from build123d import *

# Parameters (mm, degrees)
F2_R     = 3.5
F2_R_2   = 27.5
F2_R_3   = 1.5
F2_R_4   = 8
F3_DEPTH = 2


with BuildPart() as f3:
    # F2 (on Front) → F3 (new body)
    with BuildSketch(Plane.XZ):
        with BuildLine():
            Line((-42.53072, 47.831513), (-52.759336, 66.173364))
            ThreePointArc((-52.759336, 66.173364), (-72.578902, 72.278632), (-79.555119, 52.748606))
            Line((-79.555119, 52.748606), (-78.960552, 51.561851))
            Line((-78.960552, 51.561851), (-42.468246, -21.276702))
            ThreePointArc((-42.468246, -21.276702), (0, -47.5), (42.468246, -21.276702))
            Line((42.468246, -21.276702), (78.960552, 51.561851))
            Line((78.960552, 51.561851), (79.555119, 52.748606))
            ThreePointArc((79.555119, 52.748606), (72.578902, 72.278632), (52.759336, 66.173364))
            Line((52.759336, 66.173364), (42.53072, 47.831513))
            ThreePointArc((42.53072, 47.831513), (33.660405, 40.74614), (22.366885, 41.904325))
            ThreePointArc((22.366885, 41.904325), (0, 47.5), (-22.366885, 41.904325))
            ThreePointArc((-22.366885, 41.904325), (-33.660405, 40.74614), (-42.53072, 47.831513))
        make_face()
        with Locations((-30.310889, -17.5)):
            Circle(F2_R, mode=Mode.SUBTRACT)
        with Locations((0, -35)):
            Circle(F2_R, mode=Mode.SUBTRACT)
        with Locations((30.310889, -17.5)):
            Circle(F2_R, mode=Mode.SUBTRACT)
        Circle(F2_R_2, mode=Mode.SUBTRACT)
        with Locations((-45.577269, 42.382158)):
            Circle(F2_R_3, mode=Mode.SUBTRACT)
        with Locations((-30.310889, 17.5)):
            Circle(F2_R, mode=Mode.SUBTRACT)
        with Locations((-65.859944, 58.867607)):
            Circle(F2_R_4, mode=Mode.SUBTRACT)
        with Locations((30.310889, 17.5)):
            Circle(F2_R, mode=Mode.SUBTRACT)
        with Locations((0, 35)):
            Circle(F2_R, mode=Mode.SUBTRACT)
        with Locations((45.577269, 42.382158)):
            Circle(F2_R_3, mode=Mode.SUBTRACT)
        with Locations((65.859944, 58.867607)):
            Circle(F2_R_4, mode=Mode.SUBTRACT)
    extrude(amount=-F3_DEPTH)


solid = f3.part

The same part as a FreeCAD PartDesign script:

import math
import FreeCAD as App
import Part
import Sketcher
Q = App.Units.Quantity

doc = App.newDocument("Part")
params = doc.addObject("Spreadsheet::Sheet", "Params")
for row, (alias, value) in enumerate([
    ("sketch1_diameter", "7 mm"),
    ("sketch1_diameter2", "55 mm"),
    ("sketch1_diameter3", "3 mm"),
    ("sketch1_diameter4", "16 mm"),
    ("sketch1_radius", "15 mm"),
    ("pad1_length", "2 mm"),
], start=1):
    params.set(f"A{row}", alias)
    params.set(f"B{row}", "=" + value)
    params.setAlias(f"B{row}", alias)

body = doc.addObject("PartDesign::Body", "Body")

sketch1 = body.newObject("Sketcher::SketchObject", "Sketch")
sketch1.AttachmentSupport = (doc.getObject("XZ_Plane"), [""])
sketch1.MapMode = "FlatFace"
sketch1.addGeometry([
    Part.LineSegment(App.Vector(-42.53072, 47.831513, 0), App.Vector(-52.759336, 66.173364, 0)),
    Part.ArcOfCircle(Part.Circle(App.Vector(-65.859943, 58.867607, 0), App.Vector(0, 0, 1), 15), math.radians(29.146902), math.radians(204.075079)),
    Part.LineSegment(App.Vector(-79.555119, 52.748606, 0), App.Vector(-78.960552, 51.561851, 0)),
    Part.LineSegment(App.Vector(-78.960552, 51.561851, 0), App.Vector(-42.468246, -21.276702, 0)),
    Part.ArcOfCircle(Part.Circle(App.Vector(0, -0.000001, 0), App.Vector(0, 0, 1), 47.499999), math.radians(-153.389012), math.radians(-26.610988)),
    Part.LineSegment(App.Vector(42.468246, -21.276702, 0), App.Vector(78.960552, 51.561851, 0)),
    Part.LineSegment(App.Vector(78.960552, 51.561851, 0), App.Vector(79.555119, 52.748606, 0)),
    Part.ArcOfCircle(Part.Circle(App.Vector(65.859943, 58.867607, 0), App.Vector(0, 0, 1), 15), math.radians(-24.075079), math.radians(150.853098)),
    Part.LineSegment(App.Vector(52.759336, 66.173364, 0), App.Vector(42.53072, 47.831513, 0)),
    Part.ArcOfCircle(Part.Circle(App.Vector(29.430112, 55.137271, 0), App.Vector(0, 0, 1), 15.000001), math.radians(-118.091548), math.radians(-29.146904)),
    Part.ArcOfCircle(Part.Circle(App.Vector(0, 0, 0), App.Vector(0, 0, 1), 47.5), math.radians(61.908449), math.radians(118.091551)),
    Part.ArcOfCircle(Part.Circle(App.Vector(-29.430112, 55.137271, 0), App.Vector(0, 0, 1), 15.000001), math.radians(-150.853096), math.radians(-61.908452)),
    Part.Circle(App.Vector(-30.310889, -17.5, 0), App.Vector(0, 0, 1), 3.5),
    Part.Circle(App.Vector(0, -35, 0), App.Vector(0, 0, 1), 3.5),
    Part.Circle(App.Vector(30.310889, -17.5, 0), App.Vector(0, 0, 1), 3.5),
    Part.Circle(App.Vector(0, 0, 0), App.Vector(0, 0, 1), 27.5),
    Part.Circle(App.Vector(-30.310889, 17.5, 0), App.Vector(0, 0, 1), 3.5),
    Part.Circle(App.Vector(-45.577269, 42.382158, 0), App.Vector(0, 0, 1), 1.5),
    Part.Circle(App.Vector(-65.859944, 58.867607, 0), App.Vector(0, 0, 1), 8),
    Part.Circle(App.Vector(30.310889, 17.5, 0), App.Vector(0, 0, 1), 3.5),
    Part.Circle(App.Vector(0, 35, 0), App.Vector(0, 0, 1), 3.5),
    Part.Circle(App.Vector(45.577269, 42.382158, 0), App.Vector(0, 0, 1), 1.5),
    Part.Circle(App.Vector(65.859944, 58.867607, 0), App.Vector(0, 0, 1), 8),
], False)
sketch1.addConstraint([
    Sketcher.Constraint("Tangent", 0, 2, 1, 1),
    Sketcher.Constraint("Coincident", 1, 2, 2, 1),
    Sketcher.Constraint("Coincident", 2, 2, 3, 1),
    Sketcher.Constraint("Tangent", 3, 2, 4, 1),
    Sketcher.Constraint("Tangent", 4, 2, 5, 1),
    Sketcher.Constraint("Coincident", 5, 2, 6, 1),
    Sketcher.Constraint("Coincident", 6, 2, 7, 1),
    Sketcher.Constraint("Tangent", 7, 2, 8, 1),
    Sketcher.Constraint("Tangent", 8, 2, 9, 2),
    Sketcher.Constraint("Tangent", 9, 1, 10, 1),
    Sketcher.Constraint("Tangent", 10, 2, 11, 2),
    Sketcher.Constraint("Tangent", 11, 1, 0, 1),
    Sketcher.Constraint("Coincident", 4, 3, -1, 1),
    Sketcher.Constraint("Coincident", 10, 3, -1, 1),
    Sketcher.Constraint("Coincident", 15, 3, -1, 1),
    Sketcher.Constraint("Coincident", 18, 3, 1, 3),
    Sketcher.Constraint("Coincident", 22, 3, 7, 3),
    Sketcher.Constraint("Equal", 1, 7),
    Sketcher.Constraint("Equal", 7, 9),
    Sketcher.Constraint("Equal", 4, 10),
    Sketcher.Constraint("Equal", 9, 11),
    Sketcher.Constraint("Equal", 12, 13),
    Sketcher.Constraint("Equal", 13, 14),
    Sketcher.Constraint("Equal", 14, 16),
    Sketcher.Constraint("Equal", 16, 19),
    Sketcher.Constraint("Equal", 19, 20),
    Sketcher.Constraint("Equal", 17, 21),
    Sketcher.Constraint("Equal", 18, 22),
    Sketcher.Constraint("Symmetric", 14, 3, 16, 3, -1, 1),
    Sketcher.Constraint("Symmetric", 12, 3, 19, 3, -1, 1),
    Sketcher.Constraint("Symmetric", 13, 3, 20, 3, -1, 1),
    Sketcher.Constraint("Symmetric", 1, 3, 7, 3, -2),
    Sketcher.Constraint("Symmetric", 12, 3, 14, 3, -2),
    Sketcher.Constraint("Symmetric", 17, 3, 21, 3, -2),
    Sketcher.Constraint("Symmetric", 2, 2, 5, 2, -2),
    Sketcher.Constraint("PointOnObject", 13, 3, -2),
    Sketcher.Constraint("Parallel", 2, 3),
    Sketcher.Constraint("Parallel", 5, 6),
    Sketcher.Constraint("Horizontal", 9, 3, 11, 3),
    Sketcher.Constraint("Diameter", 12, Q("7 mm")),
    Sketcher.Constraint("Diameter", 15, Q("55 mm")),
    Sketcher.Constraint("Diameter", 17, Q("3 mm")),
    Sketcher.Constraint("Diameter", 18, Q("16 mm")),
    Sketcher.Constraint("Radius", 1, Q("15 mm")),
    Sketcher.Constraint("Radius", 4, Q("47.499999 mm")),
    Sketcher.Constraint("DistanceY", 13, 3, -1, 1, Q("35 mm")),
    Sketcher.Constraint("DistanceY", 12, 3, 16, 3, Q("35 mm")),
    Sketcher.Constraint("DistanceX", 12, 3, 9, 3, Q("59.741001 mm")),
    Sketcher.Constraint("DistanceY", 1, 2, 18, 3, Q("6.119001 mm")),
    Sketcher.Constraint("DistanceY", 3, 2, -1, 1, Q("21.276702 mm")),
    Sketcher.Constraint("DistanceX", -1, 1, 9, 3, Q("29.430112 mm")),
    Sketcher.Constraint("DistanceX", 17, 3, -1, 1, Q("45.577269 mm")),
    Sketcher.Constraint("DistanceX", 1, 2, -1, 1, Q("79.555119 mm")),
    Sketcher.Constraint("DistanceY", -1, 1, 2, 2, Q("51.561851 mm")),
    Sketcher.Constraint("DistanceY", 17, 3, 1, 3, Q("16.485449 mm")),
])
sketch1.setExpression("Constraints[39]", "Params.sketch1_diameter")
sketch1.setExpression("Constraints[40]", "Params.sketch1_diameter2")
sketch1.setExpression("Constraints[41]", "Params.sketch1_diameter3")
sketch1.setExpression("Constraints[42]", "Params.sketch1_diameter4")
sketch1.setExpression("Constraints[43]", "Params.sketch1_radius")
pad1 = body.newObject("PartDesign::Pad", "Pad")
pad1.Profile = sketch1
pad1.setExpression("Length", "Params.pad1_length")
pad1.Reversed = True

doc.recompute()
